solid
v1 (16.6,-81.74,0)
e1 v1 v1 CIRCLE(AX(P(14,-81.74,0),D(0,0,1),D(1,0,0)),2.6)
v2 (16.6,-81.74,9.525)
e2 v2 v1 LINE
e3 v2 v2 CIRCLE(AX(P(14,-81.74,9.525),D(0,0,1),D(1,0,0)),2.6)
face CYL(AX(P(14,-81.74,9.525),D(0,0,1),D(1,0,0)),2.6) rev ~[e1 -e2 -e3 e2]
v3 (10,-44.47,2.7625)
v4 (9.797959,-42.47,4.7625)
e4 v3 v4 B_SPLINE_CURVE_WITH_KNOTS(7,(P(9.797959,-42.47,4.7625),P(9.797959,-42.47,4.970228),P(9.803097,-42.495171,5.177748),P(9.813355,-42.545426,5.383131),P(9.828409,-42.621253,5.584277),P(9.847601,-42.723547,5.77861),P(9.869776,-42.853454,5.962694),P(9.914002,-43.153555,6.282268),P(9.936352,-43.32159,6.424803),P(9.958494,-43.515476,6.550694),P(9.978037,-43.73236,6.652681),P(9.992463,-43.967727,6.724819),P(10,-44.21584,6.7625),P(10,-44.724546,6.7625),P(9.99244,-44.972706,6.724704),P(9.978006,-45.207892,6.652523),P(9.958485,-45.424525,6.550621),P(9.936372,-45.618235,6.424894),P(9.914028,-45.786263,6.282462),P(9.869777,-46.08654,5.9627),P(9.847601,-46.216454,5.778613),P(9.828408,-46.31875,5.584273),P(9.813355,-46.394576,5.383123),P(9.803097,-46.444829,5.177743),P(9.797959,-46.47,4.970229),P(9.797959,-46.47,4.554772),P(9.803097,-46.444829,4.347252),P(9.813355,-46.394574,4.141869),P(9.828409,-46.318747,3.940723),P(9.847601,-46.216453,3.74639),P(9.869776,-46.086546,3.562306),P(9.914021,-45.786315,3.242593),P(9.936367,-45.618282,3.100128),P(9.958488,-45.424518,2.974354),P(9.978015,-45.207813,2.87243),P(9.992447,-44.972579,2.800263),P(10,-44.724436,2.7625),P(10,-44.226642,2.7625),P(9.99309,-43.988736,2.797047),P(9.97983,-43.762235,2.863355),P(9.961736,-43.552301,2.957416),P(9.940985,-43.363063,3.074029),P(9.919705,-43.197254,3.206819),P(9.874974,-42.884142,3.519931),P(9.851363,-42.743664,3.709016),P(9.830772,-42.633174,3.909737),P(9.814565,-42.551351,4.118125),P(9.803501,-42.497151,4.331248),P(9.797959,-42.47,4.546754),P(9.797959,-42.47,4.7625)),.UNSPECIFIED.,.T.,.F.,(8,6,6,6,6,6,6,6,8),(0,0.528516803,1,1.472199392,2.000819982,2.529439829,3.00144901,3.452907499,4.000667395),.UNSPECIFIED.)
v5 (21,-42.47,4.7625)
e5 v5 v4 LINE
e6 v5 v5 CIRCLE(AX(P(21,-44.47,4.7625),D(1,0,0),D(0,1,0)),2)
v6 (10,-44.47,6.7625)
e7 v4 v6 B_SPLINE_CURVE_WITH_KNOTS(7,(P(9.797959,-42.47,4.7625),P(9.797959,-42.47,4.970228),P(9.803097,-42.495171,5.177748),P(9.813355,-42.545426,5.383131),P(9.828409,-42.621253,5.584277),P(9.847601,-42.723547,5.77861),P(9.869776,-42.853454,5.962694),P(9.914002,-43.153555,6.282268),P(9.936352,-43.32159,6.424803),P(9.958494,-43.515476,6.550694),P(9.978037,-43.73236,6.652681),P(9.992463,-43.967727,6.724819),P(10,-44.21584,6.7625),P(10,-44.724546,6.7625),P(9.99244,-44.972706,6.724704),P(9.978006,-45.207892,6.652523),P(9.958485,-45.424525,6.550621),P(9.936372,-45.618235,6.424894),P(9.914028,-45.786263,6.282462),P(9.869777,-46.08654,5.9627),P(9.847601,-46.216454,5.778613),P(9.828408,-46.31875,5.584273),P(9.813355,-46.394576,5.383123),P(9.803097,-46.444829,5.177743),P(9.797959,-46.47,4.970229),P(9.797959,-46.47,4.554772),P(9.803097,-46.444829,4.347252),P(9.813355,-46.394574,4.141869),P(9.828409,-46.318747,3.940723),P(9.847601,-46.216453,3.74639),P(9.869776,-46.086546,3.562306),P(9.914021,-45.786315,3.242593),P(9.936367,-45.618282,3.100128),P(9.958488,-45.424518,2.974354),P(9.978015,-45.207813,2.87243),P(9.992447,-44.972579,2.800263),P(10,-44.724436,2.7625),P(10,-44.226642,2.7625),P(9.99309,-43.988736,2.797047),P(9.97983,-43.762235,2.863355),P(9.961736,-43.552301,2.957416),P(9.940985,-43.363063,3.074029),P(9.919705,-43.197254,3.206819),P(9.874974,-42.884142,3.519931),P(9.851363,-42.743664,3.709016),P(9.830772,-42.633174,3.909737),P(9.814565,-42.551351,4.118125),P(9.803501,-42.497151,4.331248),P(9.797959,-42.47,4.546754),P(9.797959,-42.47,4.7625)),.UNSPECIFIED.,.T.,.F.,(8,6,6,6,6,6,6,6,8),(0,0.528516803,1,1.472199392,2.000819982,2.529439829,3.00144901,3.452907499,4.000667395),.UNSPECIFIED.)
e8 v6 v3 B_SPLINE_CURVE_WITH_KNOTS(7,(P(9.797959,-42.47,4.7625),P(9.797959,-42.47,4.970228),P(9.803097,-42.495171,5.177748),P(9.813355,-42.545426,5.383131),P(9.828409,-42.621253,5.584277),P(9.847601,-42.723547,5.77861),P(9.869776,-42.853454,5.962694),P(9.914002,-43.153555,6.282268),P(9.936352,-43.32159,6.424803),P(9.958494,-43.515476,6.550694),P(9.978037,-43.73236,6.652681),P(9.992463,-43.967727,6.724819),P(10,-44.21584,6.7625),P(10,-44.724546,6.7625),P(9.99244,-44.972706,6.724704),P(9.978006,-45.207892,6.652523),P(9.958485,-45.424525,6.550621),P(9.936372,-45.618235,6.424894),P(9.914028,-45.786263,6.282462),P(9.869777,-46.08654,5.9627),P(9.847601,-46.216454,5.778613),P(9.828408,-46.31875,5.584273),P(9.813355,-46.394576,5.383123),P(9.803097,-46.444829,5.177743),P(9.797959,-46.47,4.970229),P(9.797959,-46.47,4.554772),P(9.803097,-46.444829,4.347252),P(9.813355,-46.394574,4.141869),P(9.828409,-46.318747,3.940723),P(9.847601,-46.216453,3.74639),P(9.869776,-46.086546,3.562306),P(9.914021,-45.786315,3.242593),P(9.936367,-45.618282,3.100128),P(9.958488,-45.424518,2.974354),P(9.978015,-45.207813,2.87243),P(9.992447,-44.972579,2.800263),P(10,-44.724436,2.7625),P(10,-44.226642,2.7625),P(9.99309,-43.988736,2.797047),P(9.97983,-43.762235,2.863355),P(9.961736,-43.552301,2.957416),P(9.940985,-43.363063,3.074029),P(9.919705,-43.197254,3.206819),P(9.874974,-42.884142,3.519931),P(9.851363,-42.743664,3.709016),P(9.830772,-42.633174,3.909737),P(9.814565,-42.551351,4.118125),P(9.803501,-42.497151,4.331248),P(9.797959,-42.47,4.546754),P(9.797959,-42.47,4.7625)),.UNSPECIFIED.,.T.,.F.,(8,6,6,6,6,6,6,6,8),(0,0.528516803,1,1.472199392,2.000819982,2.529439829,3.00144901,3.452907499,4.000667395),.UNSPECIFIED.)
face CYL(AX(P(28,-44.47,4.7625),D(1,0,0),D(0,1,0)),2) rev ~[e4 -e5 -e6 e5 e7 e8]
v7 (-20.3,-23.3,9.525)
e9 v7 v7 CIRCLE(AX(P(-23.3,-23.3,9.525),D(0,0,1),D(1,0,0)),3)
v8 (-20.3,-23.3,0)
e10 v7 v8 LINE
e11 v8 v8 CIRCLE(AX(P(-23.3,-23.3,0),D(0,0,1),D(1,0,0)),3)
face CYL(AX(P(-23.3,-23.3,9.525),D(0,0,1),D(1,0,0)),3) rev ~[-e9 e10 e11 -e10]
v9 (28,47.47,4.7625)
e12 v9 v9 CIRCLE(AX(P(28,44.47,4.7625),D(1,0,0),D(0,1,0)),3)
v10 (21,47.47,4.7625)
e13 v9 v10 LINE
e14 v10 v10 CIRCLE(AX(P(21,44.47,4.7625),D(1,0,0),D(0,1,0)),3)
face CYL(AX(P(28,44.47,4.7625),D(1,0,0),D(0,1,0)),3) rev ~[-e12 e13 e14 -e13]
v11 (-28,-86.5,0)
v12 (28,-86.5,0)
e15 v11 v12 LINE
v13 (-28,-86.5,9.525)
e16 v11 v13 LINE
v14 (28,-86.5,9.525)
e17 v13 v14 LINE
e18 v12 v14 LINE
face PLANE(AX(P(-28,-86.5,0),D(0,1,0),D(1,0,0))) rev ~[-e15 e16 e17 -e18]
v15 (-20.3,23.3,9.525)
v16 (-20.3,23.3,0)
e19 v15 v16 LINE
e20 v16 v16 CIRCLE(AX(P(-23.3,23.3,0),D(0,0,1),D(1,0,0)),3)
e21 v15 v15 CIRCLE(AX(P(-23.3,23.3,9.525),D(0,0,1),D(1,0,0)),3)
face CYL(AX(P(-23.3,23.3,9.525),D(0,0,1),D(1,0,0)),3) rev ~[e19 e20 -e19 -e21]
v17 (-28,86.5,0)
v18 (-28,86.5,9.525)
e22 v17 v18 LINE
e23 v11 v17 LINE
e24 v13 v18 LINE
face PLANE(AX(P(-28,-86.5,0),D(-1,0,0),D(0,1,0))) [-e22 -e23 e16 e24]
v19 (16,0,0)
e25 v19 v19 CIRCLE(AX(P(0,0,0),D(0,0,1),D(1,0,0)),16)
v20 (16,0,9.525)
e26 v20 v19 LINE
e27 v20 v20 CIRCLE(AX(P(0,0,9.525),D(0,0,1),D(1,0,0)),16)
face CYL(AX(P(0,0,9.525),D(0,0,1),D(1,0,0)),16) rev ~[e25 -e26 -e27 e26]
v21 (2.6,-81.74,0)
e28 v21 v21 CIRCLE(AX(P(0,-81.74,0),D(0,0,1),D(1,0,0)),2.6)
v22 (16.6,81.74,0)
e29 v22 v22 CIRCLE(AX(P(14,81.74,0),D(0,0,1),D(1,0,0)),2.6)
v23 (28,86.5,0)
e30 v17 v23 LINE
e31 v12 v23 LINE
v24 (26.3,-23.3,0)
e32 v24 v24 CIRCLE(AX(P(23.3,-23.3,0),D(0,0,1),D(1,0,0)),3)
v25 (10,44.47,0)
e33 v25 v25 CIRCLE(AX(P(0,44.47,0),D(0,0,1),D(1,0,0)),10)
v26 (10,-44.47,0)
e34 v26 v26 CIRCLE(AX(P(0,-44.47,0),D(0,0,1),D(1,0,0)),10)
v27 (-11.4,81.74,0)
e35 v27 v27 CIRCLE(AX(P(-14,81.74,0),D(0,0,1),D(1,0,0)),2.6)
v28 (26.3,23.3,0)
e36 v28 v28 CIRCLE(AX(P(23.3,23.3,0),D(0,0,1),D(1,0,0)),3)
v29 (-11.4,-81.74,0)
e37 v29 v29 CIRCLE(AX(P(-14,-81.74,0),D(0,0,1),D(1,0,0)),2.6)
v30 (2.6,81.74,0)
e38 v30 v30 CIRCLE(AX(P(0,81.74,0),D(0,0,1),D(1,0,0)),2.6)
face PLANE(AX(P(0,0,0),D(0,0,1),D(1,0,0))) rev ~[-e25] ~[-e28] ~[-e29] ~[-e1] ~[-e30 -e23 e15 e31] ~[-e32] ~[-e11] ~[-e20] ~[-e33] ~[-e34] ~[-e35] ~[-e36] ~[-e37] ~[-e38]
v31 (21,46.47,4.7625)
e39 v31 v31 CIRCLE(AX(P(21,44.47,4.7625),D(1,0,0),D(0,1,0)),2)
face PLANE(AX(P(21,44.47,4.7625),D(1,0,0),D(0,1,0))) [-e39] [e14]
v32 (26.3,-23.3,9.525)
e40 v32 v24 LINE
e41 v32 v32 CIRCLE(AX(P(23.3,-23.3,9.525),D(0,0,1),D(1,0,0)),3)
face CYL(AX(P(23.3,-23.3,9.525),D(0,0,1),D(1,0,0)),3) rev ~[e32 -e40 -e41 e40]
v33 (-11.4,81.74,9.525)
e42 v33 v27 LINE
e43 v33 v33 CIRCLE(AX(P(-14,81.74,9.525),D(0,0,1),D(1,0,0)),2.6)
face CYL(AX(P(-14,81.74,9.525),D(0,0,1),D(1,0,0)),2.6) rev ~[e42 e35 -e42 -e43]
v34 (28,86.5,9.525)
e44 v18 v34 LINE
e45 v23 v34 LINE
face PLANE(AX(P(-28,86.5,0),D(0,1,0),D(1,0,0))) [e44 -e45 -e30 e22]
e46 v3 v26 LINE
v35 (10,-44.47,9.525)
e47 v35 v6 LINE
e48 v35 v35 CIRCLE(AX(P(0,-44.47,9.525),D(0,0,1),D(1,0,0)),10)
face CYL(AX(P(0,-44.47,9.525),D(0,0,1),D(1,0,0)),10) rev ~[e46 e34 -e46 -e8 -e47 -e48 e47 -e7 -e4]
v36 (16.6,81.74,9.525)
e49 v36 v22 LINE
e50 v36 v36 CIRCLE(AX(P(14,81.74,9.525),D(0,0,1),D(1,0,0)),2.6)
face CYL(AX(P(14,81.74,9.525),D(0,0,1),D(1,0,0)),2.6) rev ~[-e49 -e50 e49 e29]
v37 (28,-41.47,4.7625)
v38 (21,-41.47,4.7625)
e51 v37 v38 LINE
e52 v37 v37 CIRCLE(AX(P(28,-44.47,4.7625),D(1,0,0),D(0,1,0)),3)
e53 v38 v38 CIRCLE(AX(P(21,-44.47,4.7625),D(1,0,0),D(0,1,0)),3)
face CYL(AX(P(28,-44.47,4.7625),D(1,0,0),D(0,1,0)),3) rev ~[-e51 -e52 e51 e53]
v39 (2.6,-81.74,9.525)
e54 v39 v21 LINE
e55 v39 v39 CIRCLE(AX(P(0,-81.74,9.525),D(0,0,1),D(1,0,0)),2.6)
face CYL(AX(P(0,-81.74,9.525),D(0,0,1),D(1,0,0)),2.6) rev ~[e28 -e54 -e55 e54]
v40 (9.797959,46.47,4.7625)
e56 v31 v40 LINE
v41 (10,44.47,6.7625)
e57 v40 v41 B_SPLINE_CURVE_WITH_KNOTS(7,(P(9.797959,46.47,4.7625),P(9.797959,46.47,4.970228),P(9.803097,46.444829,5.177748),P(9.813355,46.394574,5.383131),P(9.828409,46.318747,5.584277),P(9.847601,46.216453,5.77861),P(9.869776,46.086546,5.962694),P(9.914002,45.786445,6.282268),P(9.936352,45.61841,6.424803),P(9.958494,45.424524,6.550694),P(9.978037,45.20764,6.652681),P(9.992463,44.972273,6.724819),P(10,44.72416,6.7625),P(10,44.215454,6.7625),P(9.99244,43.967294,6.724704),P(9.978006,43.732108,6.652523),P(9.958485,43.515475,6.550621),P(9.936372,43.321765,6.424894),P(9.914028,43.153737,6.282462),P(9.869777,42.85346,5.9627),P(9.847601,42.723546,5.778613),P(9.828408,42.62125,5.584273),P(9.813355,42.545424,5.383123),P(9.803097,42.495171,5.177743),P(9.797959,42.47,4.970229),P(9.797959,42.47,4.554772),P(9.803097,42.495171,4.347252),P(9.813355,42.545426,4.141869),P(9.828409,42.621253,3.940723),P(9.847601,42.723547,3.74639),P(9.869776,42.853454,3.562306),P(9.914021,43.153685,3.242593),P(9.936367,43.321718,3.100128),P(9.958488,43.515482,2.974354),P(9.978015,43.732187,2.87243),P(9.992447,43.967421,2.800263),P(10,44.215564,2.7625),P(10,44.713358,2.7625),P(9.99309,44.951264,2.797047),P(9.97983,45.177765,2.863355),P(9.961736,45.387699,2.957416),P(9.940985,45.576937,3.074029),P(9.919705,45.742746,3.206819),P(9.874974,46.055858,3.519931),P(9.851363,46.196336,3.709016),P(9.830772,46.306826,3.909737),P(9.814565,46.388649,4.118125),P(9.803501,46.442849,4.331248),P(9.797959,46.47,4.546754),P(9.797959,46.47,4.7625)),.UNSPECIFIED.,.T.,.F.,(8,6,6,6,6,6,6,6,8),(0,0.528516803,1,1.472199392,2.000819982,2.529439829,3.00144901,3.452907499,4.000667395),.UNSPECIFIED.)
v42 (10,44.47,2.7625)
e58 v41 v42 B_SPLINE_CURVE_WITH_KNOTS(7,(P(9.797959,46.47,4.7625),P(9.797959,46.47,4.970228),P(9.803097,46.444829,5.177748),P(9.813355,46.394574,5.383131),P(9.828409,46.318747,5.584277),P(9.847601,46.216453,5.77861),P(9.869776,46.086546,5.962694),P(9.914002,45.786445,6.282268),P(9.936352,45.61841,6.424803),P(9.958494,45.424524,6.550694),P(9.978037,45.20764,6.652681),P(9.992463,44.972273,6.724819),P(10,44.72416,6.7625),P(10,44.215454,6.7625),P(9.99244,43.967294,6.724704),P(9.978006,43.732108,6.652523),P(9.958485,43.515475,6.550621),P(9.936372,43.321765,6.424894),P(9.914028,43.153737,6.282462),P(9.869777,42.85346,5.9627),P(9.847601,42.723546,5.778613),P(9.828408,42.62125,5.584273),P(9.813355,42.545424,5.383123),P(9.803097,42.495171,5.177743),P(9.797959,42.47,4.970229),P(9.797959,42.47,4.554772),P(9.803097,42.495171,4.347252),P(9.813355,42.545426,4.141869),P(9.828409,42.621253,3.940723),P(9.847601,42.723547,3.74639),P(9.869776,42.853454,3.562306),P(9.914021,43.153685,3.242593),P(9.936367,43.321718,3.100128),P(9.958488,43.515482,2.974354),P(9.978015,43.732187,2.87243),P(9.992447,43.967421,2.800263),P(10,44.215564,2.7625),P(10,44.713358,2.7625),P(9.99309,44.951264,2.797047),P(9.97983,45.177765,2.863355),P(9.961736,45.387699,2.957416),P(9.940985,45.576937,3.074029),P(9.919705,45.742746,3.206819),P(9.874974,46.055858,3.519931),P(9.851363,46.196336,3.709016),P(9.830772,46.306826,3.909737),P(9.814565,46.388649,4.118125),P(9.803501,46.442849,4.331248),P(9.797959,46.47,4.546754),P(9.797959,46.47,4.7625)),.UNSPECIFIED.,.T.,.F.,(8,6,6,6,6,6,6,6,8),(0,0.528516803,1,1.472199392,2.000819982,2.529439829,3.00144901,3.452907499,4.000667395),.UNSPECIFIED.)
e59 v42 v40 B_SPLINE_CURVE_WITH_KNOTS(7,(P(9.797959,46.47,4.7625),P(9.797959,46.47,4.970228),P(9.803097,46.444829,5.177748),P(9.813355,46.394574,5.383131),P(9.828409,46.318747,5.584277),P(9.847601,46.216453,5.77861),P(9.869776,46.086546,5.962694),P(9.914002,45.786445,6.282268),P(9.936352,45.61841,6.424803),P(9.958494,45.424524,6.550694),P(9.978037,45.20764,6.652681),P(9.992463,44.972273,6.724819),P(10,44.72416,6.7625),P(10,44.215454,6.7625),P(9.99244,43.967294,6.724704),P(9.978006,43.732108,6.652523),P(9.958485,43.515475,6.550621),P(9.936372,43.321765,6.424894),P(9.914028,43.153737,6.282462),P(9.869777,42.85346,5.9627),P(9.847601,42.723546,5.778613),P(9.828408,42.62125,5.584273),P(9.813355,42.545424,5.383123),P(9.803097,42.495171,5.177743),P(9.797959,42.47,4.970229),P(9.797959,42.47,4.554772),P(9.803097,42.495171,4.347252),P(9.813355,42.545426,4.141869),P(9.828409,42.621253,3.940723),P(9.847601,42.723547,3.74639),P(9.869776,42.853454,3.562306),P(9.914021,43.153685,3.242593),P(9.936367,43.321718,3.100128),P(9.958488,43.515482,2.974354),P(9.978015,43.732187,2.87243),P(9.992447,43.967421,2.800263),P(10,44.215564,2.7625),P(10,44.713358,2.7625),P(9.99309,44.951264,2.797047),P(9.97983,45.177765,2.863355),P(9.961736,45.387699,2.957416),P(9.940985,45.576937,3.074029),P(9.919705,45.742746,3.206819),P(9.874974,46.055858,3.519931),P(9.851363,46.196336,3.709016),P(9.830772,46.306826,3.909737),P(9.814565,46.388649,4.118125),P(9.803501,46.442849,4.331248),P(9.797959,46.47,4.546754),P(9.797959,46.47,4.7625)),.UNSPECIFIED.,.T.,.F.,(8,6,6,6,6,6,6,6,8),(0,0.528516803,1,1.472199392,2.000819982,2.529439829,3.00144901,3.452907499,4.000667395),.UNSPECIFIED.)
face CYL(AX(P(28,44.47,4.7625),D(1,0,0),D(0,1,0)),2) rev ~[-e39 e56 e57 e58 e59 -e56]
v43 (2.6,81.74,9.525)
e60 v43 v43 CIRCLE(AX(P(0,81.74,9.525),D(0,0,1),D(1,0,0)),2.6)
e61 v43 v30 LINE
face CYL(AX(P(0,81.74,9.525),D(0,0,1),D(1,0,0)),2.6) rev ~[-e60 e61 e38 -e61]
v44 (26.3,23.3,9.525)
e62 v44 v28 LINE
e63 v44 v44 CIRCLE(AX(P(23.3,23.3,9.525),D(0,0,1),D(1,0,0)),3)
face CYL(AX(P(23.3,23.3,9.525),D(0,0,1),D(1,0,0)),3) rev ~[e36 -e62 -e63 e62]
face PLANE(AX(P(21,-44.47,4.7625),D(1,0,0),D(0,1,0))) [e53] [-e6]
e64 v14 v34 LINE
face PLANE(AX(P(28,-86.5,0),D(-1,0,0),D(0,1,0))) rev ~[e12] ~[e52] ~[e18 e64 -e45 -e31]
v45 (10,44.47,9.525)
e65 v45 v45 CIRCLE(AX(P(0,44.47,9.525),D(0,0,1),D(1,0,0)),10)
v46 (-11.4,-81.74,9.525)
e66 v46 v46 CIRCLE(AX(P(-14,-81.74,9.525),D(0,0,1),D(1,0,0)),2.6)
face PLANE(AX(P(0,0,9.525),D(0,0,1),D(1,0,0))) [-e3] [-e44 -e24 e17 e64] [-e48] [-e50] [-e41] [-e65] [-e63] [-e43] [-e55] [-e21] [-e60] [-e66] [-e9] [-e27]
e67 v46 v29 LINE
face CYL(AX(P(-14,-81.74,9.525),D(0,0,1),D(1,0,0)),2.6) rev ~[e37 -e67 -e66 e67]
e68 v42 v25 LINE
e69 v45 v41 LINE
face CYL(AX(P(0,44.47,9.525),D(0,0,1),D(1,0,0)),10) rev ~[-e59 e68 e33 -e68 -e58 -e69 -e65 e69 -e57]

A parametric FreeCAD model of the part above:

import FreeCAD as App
import Part
import Sketcher

V = App.Vector
Q = App.Units.Quantity

doc = App.newDocument("Part")
body = doc.addObject("PartDesign::Body", "Body")

# Sketch on XY plane
sketch1 = doc.addObject("Sketcher::SketchObject", "Sketch")
body.addObject(sketch1)
sketch1.AttachmentSupport = (doc.XY_Plane, [""])
sketch1.MapMode = "FlatFace"
sketch1.addGeometry([
    Part.LineSegment(V(-28, 86, 0), V(-28, -86, 0)),
    Part.LineSegment(V(-28, -86, 0), V(28, -86, 0)),
    Part.LineSegment(V(28, -86, 0), V(28, 86, 0)),
    Part.LineSegment(V(28, 86, 0), V(-28, 86, 0)),
], False)
sketch1.addConstraint([
    Sketcher.Constraint("Coincident", 0, 2, 1, 1),
    Sketcher.Constraint("Coincident", 1, 2, 2, 1),
    Sketcher.Constraint("Coincident", 2, 2, 3, 1),
    Sketcher.Constraint("Coincident", 3, 2, 0, 1),
    Sketcher.Constraint("Vertical", 0),
    Sketcher.Constraint("Horizontal", 1),
    Sketcher.Constraint("Vertical", 2),
    Sketcher.Constraint("Horizontal", 3),
    Sketcher.Constraint("Symmetric", 0, 2, 2, 2, -1, 1),
    Sketcher.Constraint("DistanceX", 1, 1, 1, 2, Q("56 mm")),
    Sketcher.Constraint("DistanceY", 0, 2, 0, 1, Q("173 mm")),
])
pad1 = doc.addObject("PartDesign::Pad", "Pad")
body.addObject(pad1)
pad1.Profile = sketch1
pad1.Length = 9.525

# Sketch on XY plane
sketch2 = doc.addObject("Sketcher::SketchObject", "Sketch001")
body.addObject(sketch2)
sketch2.AttachmentSupport = (doc.XY_Plane, [""])
sketch2.MapMode = "FlatFace"
sketch2.AttachmentOffset = App.Placement(V(0, 0, 9.525), App.Rotation())
sketch2.addGeometry([
    Part.Circle(V(0, 0, 0), V(0, 0, 1), 16),  # 0
    Part.Circle(V(0, 44.5, 0), V(0, 0, 1), 10),  # 1
    Part.Circle(V(0, -44.5, 0), V(0, 0, 1), 10),  # 2
    Part.Circle(V(0, 81.7, 0), V(0, 0, 1), 2.6),  # 3
    Part.Circle(V(14, 81.7, 0), V(0, 0, 1), 2.6),  # 4
    Part.Circle(V(-14, 81.7, 0), V(0, 0, 1), 2.6),  # 5
    Part.Circle(V(14, -81.7, 0), V(0, 0, 1), 2.6),  # 6
    Part.Circle(V(0, -81.7, 0), V(0, 0, 1), 2.6),  # 7
    Part.Circle(V(-14, -81.7, 0), V(0, 0, 1), 2.6),  # 8
], False)
sketch2.addConstraint([
    Sketcher.Constraint("Coincident", 0, 3, -1, 1),
    Sketcher.Constraint("Equal", 1, 2),
    Sketcher.Constraint("Equal", 3, 4),
    Sketcher.Constraint("Equal", 4, 5),
    Sketcher.Constraint("Equal", 5, 6),
    Sketcher.Constraint("Equal", 6, 7),
    Sketcher.Constraint("Equal", 7, 8),
    Sketcher.Constraint("Symmetric", 1, 3, 2, 3, -1, 1),
    Sketcher.Constraint("Symmetric", 5, 3, 6, 3, -1, 1),
    Sketcher.Constraint("Symmetric", 3, 3, 7, 3, -1, 1),
    Sketcher.Constraint("Symmetric", 4, 3, 8, 3, -1, 1),
    Sketcher.Constraint("Symmetric", 4, 3, 5, 3, -2),
    Sketcher.Constraint("PointOnObject", 1, 3, -2),
    Sketcher.Constraint("PointOnObject", 3, 3, -2),
    Sketcher.Constraint("Horizontal", 3, 3, 4, 3),
    Sketcher.Constraint("Diameter", 0, Q("32 mm")),
    Sketcher.Constraint("Diameter", 1, Q("20 mm")),
    Sketcher.Constraint("Diameter", 3, Q("5.2 mm")),
    Sketcher.Constraint("DistanceX", -1, 1, 4, 3, Q("14 mm")),
    Sketcher.Constraint("DistanceY", -1, 1, 1, 3, Q("44.47 mm")),
    Sketcher.Constraint("DistanceY", -1, 1, 3, 3, Q("81.74 mm")),
])
pocket1 = doc.addObject("PartDesign::Pocket", "Pocket")
body.addObject(pocket1)
pocket1.Profile = sketch2
pocket1.Length = 9.525

# Sketch on YZ plane
sketch3 = doc.addObject("Sketcher::SketchObject", "Sketch002")
body.addObject(sketch3)
sketch3.AttachmentSupport = (doc.YZ_Plane, [""])
sketch3.MapMode = "FlatFace"
sketch3.AttachmentOffset = App.Placement(V(0, 0, 28), App.Rotation())
sketch3.addGeometry(Part.Circle(V(-44.5, 4.8, 0), V(0, 0, 1), 2), False)
sketch3.addConstraint([
    Sketcher.Constraint("Diameter", 0, Q("4 mm")),
    Sketcher.Constraint("DistanceX", 0, 3, -1, 1, Q("44.47 mm")),
    Sketcher.Constraint("DistanceY", -1, 1, 0, 3, Q("4.7625 mm")),
])
pocket2 = doc.addObject("PartDesign::Pocket", "Pocket001")
body.addObject(pocket2)
pocket2.Profile = sketch3
pocket2.Length = 18.202041

# Sketch on YZ plane
sketch4 = doc.addObject("Sketcher::SketchObject", "Sketch003")
body.addObject(sketch4)
sketch4.AttachmentSupport = (doc.YZ_Plane, [""])
sketch4.MapMode = "FlatFace"
sketch4.AttachmentOffset = App.Placement(V(0, 0, 28), App.Rotation())
sketch4.addGeometry(Part.Circle(V(44.5, 4.8, 0), V(0, 0, 1), 2), False)
sketch4.addConstraint([
    Sketcher.Constraint("Diameter", 0, Q("4 mm")),
    Sketcher.Constraint("DistanceX", -1, 1, 0, 3, Q("44.47 mm")),
    Sketcher.Constraint("DistanceY", -1, 1, 0, 3, Q("4.7625 mm")),
])
pocket3 = doc.addObject("PartDesign::Pocket", "Pocket002")
body.addObject(pocket3)
pocket3.Profile = sketch4
pocket3.Length = 18.202041

# Sketch on YZ plane
sketch5 = doc.addObject("Sketcher::SketchObject", "Sketch004")
body.addObject(sketch5)
sketch5.AttachmentSupport = (doc.YZ_Plane, [""])
sketch5.MapMode = "FlatFace"
sketch5.AttachmentOffset = App.Placement(V(0, 0, 28), App.Rotation())
sketch5.addGeometry([
    Part.Circle(V(-44.5, 4.8, 0), V(0, 0, 1), 3),
    Part.Circle(V(44.5, 4.8, 0), V(0, 0, 1), 3),
], False)
sketch5.addConstraint([
    Sketcher.Constraint("Equal", 0, 1),
    Sketcher.Constraint("Symmetric", 0, 3, 1, 3, -2),
    Sketcher.Constraint("Diameter", 0, Q("6 mm")),
    Sketcher.Constraint("DistanceX", 0, 3, -1, 1, Q("44.47 mm")),
    Sketcher.Constraint("DistanceY", -1, 1, 0, 3, Q("4.7625 mm")),
])
pocket4 = doc.addObject("PartDesign::Pocket", "Pocket003")
body.addObject(pocket4)
pocket4.Profile = sketch5
pocket4.Length = 7

# Sketch on XY plane
sketch6 = doc.addObject("Sketcher::SketchObject", "Sketch005")
body.addObject(sketch6)
sketch6.AttachmentSupport = (doc.XY_Plane, [""])
sketch6.MapMode = "FlatFace"
sketch6.AttachmentOffset = App.Placement(V(0, 0, 9.525), App.Rotation())
sketch6.addGeometry([
    Part.Circle(V(-23.3, 23.3, 0), V(0, 0, 1), 3),
    Part.Circle(V(23.3, 23.3, 0), V(0, 0, 1), 3),
    Part.Circle(V(23.3, -23.3, 0), V(0, 0, 1), 3),
    Part.Circle(V(-23.3, -23.3, 0), V(0, 0, 1), 3),
], False)
sketch6.addConstraint([
    Sketcher.Constraint("Equal", 0, 1),
    Sketcher.Constraint("Equal", 1, 2),
    Sketcher.Constraint("Equal", 2, 3),
    Sketcher.Constraint("Symmetric", 0, 3, 2, 3, -1, 1),
    Sketcher.Constraint("Symmetric", 1, 3, 3, 3, -1, 1),
    Sketcher.Constraint("Symmetric", 0, 3, 1, 3, -2),
    Sketcher.Constraint("Diameter", 0, Q("6 mm")),
    Sketcher.Constraint("DistanceX", 0, 3, -1, 1, Q("23.3 mm")),
    Sketcher.Constraint("DistanceY", -1, 1, 0, 3, Q("23.3 mm")),
])
pocket5 = doc.addObject("PartDesign::Pocket", "Pocket004")
body.addObject(pocket5)
pocket5.Profile = sketch6
pocket5.Type = "ThroughAll"

doc.recompute()
